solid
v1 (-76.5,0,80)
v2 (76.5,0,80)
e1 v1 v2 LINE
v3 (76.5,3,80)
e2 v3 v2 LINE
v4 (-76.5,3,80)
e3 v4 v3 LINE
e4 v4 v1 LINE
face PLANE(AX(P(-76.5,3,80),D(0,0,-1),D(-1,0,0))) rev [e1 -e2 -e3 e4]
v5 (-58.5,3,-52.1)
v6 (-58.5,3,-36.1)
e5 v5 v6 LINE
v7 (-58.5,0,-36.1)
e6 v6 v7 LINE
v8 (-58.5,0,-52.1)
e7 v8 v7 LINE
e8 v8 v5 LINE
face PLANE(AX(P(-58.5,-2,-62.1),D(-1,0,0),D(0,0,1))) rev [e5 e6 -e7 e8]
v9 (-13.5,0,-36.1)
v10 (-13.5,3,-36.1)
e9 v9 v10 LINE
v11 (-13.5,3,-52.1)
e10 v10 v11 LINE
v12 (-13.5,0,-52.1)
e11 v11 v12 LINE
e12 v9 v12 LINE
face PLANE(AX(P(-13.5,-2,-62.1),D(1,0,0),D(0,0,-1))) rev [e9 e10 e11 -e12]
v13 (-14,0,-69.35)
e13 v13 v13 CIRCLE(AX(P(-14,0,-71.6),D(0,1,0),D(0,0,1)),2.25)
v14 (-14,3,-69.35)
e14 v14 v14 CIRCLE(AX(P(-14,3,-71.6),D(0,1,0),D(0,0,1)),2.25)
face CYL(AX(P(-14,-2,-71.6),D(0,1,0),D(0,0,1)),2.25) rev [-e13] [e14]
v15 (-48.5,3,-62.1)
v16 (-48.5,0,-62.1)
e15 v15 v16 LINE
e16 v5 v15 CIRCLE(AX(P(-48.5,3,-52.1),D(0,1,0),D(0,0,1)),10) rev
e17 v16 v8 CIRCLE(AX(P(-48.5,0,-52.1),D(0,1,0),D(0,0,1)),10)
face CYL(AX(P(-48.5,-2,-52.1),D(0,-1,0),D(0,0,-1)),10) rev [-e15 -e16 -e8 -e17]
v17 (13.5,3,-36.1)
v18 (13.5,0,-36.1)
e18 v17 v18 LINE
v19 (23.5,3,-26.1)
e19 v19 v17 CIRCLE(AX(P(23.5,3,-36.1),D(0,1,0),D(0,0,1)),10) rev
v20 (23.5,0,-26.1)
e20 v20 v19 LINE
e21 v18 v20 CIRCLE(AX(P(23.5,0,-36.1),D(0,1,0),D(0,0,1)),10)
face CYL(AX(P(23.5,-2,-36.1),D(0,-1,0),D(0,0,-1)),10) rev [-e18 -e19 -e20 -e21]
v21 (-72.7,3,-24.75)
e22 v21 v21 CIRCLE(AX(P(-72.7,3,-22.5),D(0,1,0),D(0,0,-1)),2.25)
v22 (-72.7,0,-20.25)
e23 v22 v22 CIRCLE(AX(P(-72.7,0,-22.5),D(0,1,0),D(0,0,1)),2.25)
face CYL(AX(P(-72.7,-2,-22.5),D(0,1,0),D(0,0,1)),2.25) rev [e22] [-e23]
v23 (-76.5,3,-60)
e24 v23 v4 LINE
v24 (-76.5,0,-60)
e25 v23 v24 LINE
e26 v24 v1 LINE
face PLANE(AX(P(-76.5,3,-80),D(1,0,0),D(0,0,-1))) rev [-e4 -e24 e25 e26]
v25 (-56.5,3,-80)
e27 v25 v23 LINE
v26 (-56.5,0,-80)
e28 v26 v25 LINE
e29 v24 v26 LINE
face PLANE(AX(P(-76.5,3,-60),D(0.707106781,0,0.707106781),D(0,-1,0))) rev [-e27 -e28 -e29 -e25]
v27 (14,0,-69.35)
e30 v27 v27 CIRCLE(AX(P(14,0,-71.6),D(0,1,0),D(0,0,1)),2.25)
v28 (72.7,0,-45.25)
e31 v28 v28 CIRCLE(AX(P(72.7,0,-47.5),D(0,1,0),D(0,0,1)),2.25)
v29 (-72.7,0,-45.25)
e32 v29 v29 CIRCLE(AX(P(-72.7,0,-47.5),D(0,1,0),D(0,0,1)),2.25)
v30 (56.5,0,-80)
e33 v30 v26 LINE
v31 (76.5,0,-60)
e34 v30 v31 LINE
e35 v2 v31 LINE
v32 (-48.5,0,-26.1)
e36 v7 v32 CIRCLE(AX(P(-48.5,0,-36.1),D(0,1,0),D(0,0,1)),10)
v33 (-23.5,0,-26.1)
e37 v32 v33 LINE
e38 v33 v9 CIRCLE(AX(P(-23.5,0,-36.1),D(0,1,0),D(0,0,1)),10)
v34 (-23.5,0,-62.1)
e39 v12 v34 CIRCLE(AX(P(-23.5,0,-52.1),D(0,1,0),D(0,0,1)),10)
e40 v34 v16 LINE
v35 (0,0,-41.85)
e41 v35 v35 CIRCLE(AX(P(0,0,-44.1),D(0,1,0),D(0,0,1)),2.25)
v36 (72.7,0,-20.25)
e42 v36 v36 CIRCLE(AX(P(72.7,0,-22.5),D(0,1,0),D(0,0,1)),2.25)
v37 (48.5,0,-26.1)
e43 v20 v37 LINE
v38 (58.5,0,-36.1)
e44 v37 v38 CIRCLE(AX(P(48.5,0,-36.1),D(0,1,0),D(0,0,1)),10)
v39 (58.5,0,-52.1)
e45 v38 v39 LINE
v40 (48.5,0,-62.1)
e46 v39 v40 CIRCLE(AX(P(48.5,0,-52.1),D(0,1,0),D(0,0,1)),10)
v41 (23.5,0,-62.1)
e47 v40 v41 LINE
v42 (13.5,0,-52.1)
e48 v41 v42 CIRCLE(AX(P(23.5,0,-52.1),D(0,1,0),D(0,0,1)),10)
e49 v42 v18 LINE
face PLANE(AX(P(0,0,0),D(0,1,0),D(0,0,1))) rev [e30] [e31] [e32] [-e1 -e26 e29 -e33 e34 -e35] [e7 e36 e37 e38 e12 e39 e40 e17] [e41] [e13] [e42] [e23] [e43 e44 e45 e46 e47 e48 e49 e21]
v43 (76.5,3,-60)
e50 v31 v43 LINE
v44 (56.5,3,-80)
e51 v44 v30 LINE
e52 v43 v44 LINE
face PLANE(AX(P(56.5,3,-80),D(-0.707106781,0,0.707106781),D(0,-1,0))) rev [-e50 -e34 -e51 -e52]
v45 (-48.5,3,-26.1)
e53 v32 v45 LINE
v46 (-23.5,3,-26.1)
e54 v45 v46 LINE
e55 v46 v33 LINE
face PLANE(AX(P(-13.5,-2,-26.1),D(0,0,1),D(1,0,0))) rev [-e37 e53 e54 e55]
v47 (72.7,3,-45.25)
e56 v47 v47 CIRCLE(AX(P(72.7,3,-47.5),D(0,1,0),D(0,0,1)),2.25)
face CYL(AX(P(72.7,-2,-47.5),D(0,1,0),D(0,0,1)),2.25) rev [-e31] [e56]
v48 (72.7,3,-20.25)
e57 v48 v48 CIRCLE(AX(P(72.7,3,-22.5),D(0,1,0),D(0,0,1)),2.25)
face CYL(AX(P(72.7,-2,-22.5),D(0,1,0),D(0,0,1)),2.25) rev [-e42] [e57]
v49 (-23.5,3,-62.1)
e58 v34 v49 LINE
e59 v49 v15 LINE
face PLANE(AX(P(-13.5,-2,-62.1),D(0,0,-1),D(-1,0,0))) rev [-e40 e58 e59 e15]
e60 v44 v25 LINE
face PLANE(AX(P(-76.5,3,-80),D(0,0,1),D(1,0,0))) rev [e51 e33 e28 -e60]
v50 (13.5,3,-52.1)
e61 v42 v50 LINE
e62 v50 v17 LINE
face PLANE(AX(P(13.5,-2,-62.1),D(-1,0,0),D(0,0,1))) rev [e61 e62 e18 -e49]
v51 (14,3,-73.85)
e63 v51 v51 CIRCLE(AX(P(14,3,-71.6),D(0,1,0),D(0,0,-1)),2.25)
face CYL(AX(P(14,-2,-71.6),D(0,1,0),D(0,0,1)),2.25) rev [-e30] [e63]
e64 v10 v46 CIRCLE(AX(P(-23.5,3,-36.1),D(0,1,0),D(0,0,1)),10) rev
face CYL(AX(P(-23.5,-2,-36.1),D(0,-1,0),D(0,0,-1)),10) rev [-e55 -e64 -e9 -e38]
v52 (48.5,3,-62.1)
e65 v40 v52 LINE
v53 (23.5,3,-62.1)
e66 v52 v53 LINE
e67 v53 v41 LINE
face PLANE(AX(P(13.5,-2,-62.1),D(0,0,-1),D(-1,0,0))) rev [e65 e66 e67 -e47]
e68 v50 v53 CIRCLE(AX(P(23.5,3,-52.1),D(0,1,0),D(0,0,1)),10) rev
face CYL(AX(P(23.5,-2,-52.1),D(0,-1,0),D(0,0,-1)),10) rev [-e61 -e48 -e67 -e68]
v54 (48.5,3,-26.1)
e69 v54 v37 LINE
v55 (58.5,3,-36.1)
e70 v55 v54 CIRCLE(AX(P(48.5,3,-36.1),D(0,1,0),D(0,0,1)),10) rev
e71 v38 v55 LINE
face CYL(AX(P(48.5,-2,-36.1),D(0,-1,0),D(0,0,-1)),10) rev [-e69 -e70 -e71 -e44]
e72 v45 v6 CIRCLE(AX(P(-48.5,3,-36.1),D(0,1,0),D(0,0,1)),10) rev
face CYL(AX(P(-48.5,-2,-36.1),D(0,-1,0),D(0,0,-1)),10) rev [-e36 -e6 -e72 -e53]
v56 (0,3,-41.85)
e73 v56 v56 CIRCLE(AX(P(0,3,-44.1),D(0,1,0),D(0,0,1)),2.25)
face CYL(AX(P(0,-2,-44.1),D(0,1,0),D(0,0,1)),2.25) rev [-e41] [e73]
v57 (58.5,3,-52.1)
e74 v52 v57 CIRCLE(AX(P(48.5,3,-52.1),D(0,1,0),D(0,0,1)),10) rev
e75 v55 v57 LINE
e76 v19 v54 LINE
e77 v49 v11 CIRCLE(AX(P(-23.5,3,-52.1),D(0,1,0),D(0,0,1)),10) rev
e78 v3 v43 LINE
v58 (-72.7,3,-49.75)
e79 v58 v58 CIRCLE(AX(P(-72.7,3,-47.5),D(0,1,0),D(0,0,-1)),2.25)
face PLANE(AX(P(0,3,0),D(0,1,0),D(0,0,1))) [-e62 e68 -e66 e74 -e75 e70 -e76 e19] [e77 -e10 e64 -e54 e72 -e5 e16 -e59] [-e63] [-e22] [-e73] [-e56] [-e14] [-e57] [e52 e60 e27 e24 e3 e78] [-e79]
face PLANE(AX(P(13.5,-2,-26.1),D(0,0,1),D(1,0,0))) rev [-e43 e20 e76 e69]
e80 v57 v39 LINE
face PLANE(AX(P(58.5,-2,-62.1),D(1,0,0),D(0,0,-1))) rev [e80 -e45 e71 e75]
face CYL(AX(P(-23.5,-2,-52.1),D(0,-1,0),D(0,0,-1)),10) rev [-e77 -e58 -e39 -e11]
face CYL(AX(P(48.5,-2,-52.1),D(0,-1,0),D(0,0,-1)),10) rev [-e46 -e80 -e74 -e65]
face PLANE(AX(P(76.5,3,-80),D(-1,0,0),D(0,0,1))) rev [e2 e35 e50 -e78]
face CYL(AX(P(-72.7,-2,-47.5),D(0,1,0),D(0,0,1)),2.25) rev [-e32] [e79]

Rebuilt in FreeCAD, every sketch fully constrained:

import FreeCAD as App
import Part
import Sketcher


def edges_at(feature, points):
    """Names of the edges that pass closest to the given points."""
    edges = feature.Shape.Edges
    near = lambda p: min(range(len(edges)), key=lambda i: edges[i].distToShape(Part.Vertex(*p))[0])
    return sorted({f"Edge{near(p) + 1}" for p in points})

doc = App.newDocument("Part")
params = doc.addObject("Spreadsheet::Sheet", "Params")
for row, (alias, value) in enumerate([
    ("sketch1_width", "153 mm"),
    ("sketch1_height", "160 mm"),
    ("pad1_length", "3 mm"),
    ("sketch2_diameter", "4.5 mm"),
    ("pocket1_length", "5 mm"),
    ("sketch3_width", "45 mm"),
    ("sketch3_height", "36 mm"),
    ("pocket2_length", "5 mm"),
    ("fillet_radius", "10 mm"),
    ("chamfer_size", "20 mm"),
], start=1):
    params.set(f"A{row}", alias)
    params.set(f"B{row}", "=" + value)
    params.setAlias(f"B{row}", alias)

body = doc.addObject("PartDesign::Body", "Body")

# Sketch on XZ plane
sketch1 = body.newObject("Sketcher::SketchObject", "Sketch")
sketch1.AttachmentSupport = (doc.getObject("XZ_Plane"), [""])
sketch1.MapMode = "FlatFace"
sketch1.addGeometry(Part.LineSegment(App.Vector(-76.5, -80, 0), App.Vector(-76.5, 80, 0)), False)
sketch1.addGeometry(Part.LineSegment(App.Vector(-76.5, 80, 0), App.Vector(76.5, 80, 0)), False)
sketch1.addGeometry(Part.LineSegment(App.Vector(76.5, 80, 0), App.Vector(76.5, -80, 0)), False)
sketch1.addGeometry(Part.LineSegment(App.Vector(76.5, -80, 0), App.Vector(-76.5, -80, 0)), False)
sketch1.addConstraint(Sketcher.Constraint("Coincident", 0, 2, 1, 1))
sketch1.addConstraint(Sketcher.Constraint("Coincident", 1, 2, 2, 1))
sketch1.addConstraint(Sketcher.Constraint("Coincident", 2, 2, 3, 1))
sketch1.addConstraint(Sketcher.Constraint("Coincident", 3, 2, 0, 1))
sketch1.addConstraint(Sketcher.Constraint("Vertical", 0))
sketch1.addConstraint(Sketcher.Constraint("Horizontal", 1))
sketch1.addConstraint(Sketcher.Constraint("Vertical", 2))
sketch1.addConstraint(Sketcher.Constraint("Horizontal", 3))
sketch1.addConstraint(Sketcher.Constraint("Symmetric", 0, 2, 2, 2, -1, 1))
sketch1.addConstraint(Sketcher.Constraint("DistanceX", 1, 1, 1, 2, 153.0))
sketch1.addConstraint(Sketcher.Constraint("DistanceY", 0, 1, 0, 2, 160.0))
sketch1.setExpression("Constraints[9]", "Params.sketch1_width")
sketch1.setExpression("Constraints[10]", "Params.sketch1_height")
pad1 = body.newObject("PartDesign::Pad", "Pad")
pad1.Profile = sketch1
pad1.setExpression("Length", "Params.pad1_length")
pad1.Reversed = True

# Sketch on XZ plane
sketch2 = body.newObject("Sketcher::SketchObject", "Sketch001")
sketch2.AttachmentSupport = (doc.getObject("XZ_Plane"), [""])
sketch2.MapMode = "FlatFace"
sketch2.AttachmentOffset = App.Placement(App.Vector(0, 0, -3), App.Rotation())
sketch2.addGeometry(Part.Circle(App.Vector(72.7, -47.5, 0), App.Vector(0, 0, 1), 2.25), False)
sketch2.addGeometry(Part.Circle(App.Vector(-72.7, -47.5, 0), App.Vector(0, 0, 1), 2.25), False)
sketch2.addGeometry(Part.Circle(App.Vector(72.7, -22.5, 0), App.Vector(0, 0, 1), 2.25), False)
sketch2.addGeometry(Part.Circle(App.Vector(-72.7, -22.5, 0), App.Vector(0, 0, 1), 2.25), False)
sketch2.addGeometry(Part.Circle(App.Vector(-14, -71.6, 0), App.Vector(0, 0, 1), 2.25), False)
sketch2.addGeometry(Part.Circle(App.Vector(14, -71.6, 0), App.Vector(0, 0, 1), 2.25), False)
sketch2.addGeometry(Part.Circle(App.Vector(0, -44.1, 0), App.Vector(0, 0, 1), 2.25), False)
sketch2.addConstraint(Sketcher.Constraint("Equal", 0, 1))
sketch2.addConstraint(Sketcher.Constraint("Equal", 1, 2))
sketch2.addConstraint(Sketcher.Constraint("Equal", 2, 3))
sketch2.addConstraint(Sketcher.Constraint("Equal", 3, 4))
sketch2.addConstraint(Sketcher.Constraint("Equal", 4, 5))
sketch2.addConstraint(Sketcher.Constraint("Equal", 5, 6))
sketch2.addConstraint(Sketcher.Constraint("Symmetric", 0, 3, 1, 3, -2))
sketch2.addConstraint(Sketcher.Constraint("Symmetric", 2, 3, 3, 3, -2))
sketch2.addConstraint(Sketcher.Constraint("Symmetric", 4, 3, 5, 3, -2))
sketch2.addConstraint(Sketcher.Constraint("PointOnObject", 6, 3, -2))
sketch2.addConstraint(Sketcher.Constraint("Vertical", 0, 3, 2, 3))
sketch2.addConstraint(Sketcher.Constraint("Diameter", 0, 4.5))
sketch2.addConstraint(Sketcher.Constraint("DistanceX", 4, 3, -1, 1, 14.0))
sketch2.addConstraint(Sketcher.Constraint("DistanceY", 0, 3, 2, 3, 25.0))
sketch2.addConstraint(Sketcher.Constraint("DistanceX", -1, 1, 0, 3, 72.7))
sketch2.addConstraint(Sketcher.Constraint("DistanceY", 0, 3, -1, 1, 47.5))
sketch2.addConstraint(Sketcher.Constraint("DistanceY", 4, 3, -1, 1, 71.6))
sketch2.addConstraint(Sketcher.Constraint("DistanceY", 6, 3, -1, 1, 44.1))
sketch2.setExpression("Constraints[11]", "Params.sketch2_diameter")
pocket1 = body.newObject("PartDesign::Pocket", "Pocket")
pocket1.Profile = sketch2
pocket1.setExpression("Length", "Params.pocket1_length")
pocket1.Reversed = True

# Sketch on XZ plane
sketch3 = body.newObject("Sketcher::SketchObject", "Sketch002")
sketch3.AttachmentSupport = (doc.getObject("XZ_Plane"), [""])
sketch3.MapMode = "FlatFace"
sketch3.AttachmentOffset = App.Placement(App.Vector(0, 0, -3), App.Rotation())
sketch3.addGeometry(Part.LineSegment(App.Vector(13.5, -62.1, 0), App.Vector(13.5, -26.1, 0)), False)
sketch3.addGeometry(Part.LineSegment(App.Vector(13.5, -26.1, 0), App.Vector(58.5, -26.1, 0)), False)
sketch3.addGeometry(Part.LineSegment(App.Vector(58.5, -26.1, 0), App.Vector(58.5, -62.1, 0)), False)
sketch3.addGeometry(Part.LineSegment(App.Vector(58.5, -62.1, 0), App.Vector(13.5, -62.1, 0)), False)
sketch3.addGeometry(Part.LineSegment(App.Vector(-58.5, -62.1, 0), App.Vector(-58.5, -26.1, 0)), False)
sketch3.addGeometry(Part.LineSegment(App.Vector(-58.5, -26.1, 0), App.Vector(-13.5, -26.1, 0)), False)
sketch3.addGeometry(Part.LineSegment(App.Vector(-13.5, -26.1, 0), App.Vector(-13.5, -62.1, 0)), False)
sketch3.addGeometry(Part.LineSegment(App.Vector(-13.5, -62.1, 0), App.Vector(-58.5, -62.1, 0)), False)
sketch3.addConstraint(Sketcher.Constraint("Coincident", 0, 2, 1, 1))
sketch3.addConstraint(Sketcher.Constraint("Coincident", 1, 2, 2, 1))
sketch3.addConstraint(Sketcher.Constraint("Coincident", 2, 2, 3, 1))
sketch3.addConstraint(Sketcher.Constraint("Coincident", 3, 2, 0, 1))
sketch3.addConstraint(Sketcher.Constraint("Coincident", 4, 2, 5, 1))
sketch3.addConstraint(Sketcher.Constraint("Coincident", 5, 2, 6, 1))
sketch3.addConstraint(Sketcher.Constraint("Coincident", 6, 2, 7, 1))
sketch3.addConstraint(Sketcher.Constraint("Coincident", 7, 2, 4, 1))
sketch3.addConstraint(Sketcher.Constraint("Vertical", 0))
sketch3.addConstraint(Sketcher.Constraint("Horizontal", 1))
sketch3.addConstraint(Sketcher.Constraint("Vertical", 2))
sketch3.addConstraint(Sketcher.Constraint("Horizontal", 3))
sketch3.addConstraint(Sketcher.Constraint("Vertical", 4))
sketch3.addConstraint(Sketcher.Constraint("Horizontal", 5))
sketch3.addConstraint(Sketcher.Constraint("Vertical", 6))
sketch3.addConstraint(Sketcher.Constraint("Horizontal", 7))
sketch3.addConstraint(Sketcher.Constraint("Symmetric", 1, 2, 4, 2, -2))
sketch3.addConstraint(Sketcher.Constraint("Symmetric", 3, 2, 6, 2, -2))
sketch3.addConstraint(Sketcher.Constraint("DistanceX", 1, 1, 1, 2, 45.0))
sketch3.addConstraint(Sketcher.Constraint("DistanceY", 0, 1, 0, 2, 36.0))
sketch3.addConstraint(Sketcher.Constraint("DistanceX", 4, 2, 0, 2, 72.0))
sketch3.addConstraint(Sketcher.Constraint("DistanceY", 0, 2, -1, 1, 26.1))
sketch3.setExpression("Constraints[18]", "Params.sketch3_width")
sketch3.setExpression("Constraints[19]", "Params.sketch3_height")
pocket2 = body.newObject("PartDesign::Pocket", "Pocket001")
pocket2.Profile = sketch3
pocket2.setExpression("Length", "Params.pocket2_length")
pocket2.Reversed = True
doc.recompute()

fillet = body.newObject("PartDesign::Fillet", "Fillet")
fillet.Base = (pocket2, edges_at(pocket2, [
    (58.5, 1.5, -62.1),
    (58.5, 1.5, -26.1),
    (13.5, 1.5, -26.1),
    (13.5, 1.5, -62.1),
    (-58.5, 1.5, -62.1),
    (-13.5, 1.5, -62.1),
    (-13.5, 1.5, -26.1),
    (-58.5, 1.5, -26.1),
]))
fillet.setExpression("Radius", "Params.fillet_radius")
doc.recompute()

chamfer = body.newObject("PartDesign::Chamfer", "Chamfer")
chamfer.Base = (fillet, edges_at(fillet, [(-76.5, 1.5, -80), (76.5, 1.5, -80)]))
chamfer.setExpression("Size", "Params.chamfer_size")

doc.recompute()
